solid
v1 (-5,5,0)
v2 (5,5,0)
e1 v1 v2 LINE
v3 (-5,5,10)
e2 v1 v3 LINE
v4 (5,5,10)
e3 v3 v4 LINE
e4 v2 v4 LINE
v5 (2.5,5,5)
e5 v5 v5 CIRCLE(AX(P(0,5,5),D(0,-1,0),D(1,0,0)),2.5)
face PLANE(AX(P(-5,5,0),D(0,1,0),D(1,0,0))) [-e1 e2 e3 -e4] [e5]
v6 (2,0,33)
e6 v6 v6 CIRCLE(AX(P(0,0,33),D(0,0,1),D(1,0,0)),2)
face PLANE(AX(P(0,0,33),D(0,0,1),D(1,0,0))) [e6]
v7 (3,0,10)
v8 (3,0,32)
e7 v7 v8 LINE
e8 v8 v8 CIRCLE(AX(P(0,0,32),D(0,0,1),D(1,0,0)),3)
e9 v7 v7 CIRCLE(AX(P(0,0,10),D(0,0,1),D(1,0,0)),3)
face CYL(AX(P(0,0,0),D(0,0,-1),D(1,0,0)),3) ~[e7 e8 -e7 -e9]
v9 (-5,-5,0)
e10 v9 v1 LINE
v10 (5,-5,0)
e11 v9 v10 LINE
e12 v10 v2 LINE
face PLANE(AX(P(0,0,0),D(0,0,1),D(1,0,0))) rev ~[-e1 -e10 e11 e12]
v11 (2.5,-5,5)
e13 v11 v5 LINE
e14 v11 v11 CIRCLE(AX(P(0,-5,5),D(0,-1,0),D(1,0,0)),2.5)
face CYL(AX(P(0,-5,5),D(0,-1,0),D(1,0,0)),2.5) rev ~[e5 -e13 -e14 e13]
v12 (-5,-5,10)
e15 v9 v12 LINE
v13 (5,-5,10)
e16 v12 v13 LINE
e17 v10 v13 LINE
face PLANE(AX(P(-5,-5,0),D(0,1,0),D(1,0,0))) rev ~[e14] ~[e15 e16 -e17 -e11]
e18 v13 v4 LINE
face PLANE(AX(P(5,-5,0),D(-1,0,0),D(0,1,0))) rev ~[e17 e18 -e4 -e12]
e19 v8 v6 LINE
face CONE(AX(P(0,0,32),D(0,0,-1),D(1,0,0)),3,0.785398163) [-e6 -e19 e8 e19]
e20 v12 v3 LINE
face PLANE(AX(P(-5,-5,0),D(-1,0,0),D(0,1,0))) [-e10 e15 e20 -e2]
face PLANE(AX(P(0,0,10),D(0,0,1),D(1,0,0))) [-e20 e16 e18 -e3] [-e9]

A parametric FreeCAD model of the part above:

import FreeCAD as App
import Part
import Sketcher
Q = App.Units.Quantity


def edges_at(feature, points):
    """Names of the edges that pass closest to the given points."""
    edges = feature.Shape.Edges
    near = lambda p: min(range(len(edges)), key=lambda i: edges[i].distToShape(Part.Vertex(*p))[0])
    return sorted({f"Edge{near(p) + 1}" for p in points})


def add_polygon(sketch, points):
    """Adds a closed chain of lines whose ends are joined by coincident constraints."""
    first, n = sketch.GeometryCount, len(points)
    for a, b in zip(points, points[1:] + points[:1]):
        sketch.addGeometry(Part.LineSegment(App.Vector(*a, 0), App.Vector(*b, 0)), False)
    for i in range(n):
        sketch.addConstraint(Sketcher.Constraint("Coincident", first + i, 2, first + (i + 1) % n, 1))

doc = App.newDocument("Part")
body = doc.addObject("PartDesign::Body", "Body")

# Sketch on XY plane
sketch1 = body.newObject("Sketcher::SketchObject", "Sketch")
sketch1.AttachmentSupport = (doc.getObject("XY_Plane"), [""])
sketch1.MapMode = "FlatFace"
add_polygon(sketch1, [(-5, 5), (-5, -5), (5, -5), (5, 5)])  # lines 0-3
sketch1.addGeometry(Part.Circle(App.Vector(0, 0, 0), App.Vector(0, 0, 1), 3), False)  # 4
sketch1.addConstraint([
    Sketcher.Constraint("Vertical", 0),
    Sketcher.Constraint("Horizontal", 1),
    Sketcher.Constraint("Vertical", 2),
    Sketcher.Constraint("Horizontal", 3),
    Sketcher.Constraint("Coincident", 4, 3, -1, 1),
    Sketcher.Constraint("Symmetric", 0, 2, 2, 2, -1, 1),
    Sketcher.Constraint("Equal", 3, 0),
    Sketcher.Constraint("Diameter", 4, Q("6 mm")),
    Sketcher.Constraint("DistanceX", 1, 1, 1, 2, Q("10 mm")),
])
pad1 = body.newObject("PartDesign::Pad", "Pad")
pad1.Profile = sketch1
pad1.Length = 10

# Sketch on XY plane
sketch2 = body.newObject("Sketcher::SketchObject", "Sketch001")
sketch2.AttachmentSupport = (doc.getObject("XY_Plane"), [""])
sketch2.MapMode = "FlatFace"
sketch2.addGeometry(Part.Circle(App.Vector(0, 0, 0), App.Vector(0, 0, 1), 3), False)
sketch2.addConstraint([
    Sketcher.Constraint("Coincident", 0, 3, -1, 1),
    Sketcher.Constraint("Diameter", 0, Q("6 mm")),
])
pad2 = body.newObject("PartDesign::Pad", "Pad001")
pad2.Profile = sketch2
pad2.Length = 33
doc.recompute()

chamfer = body.newObject("PartDesign::Chamfer", "Chamfer")
chamfer.Base = (pad2, edges_at(pad2, [(-3, 0, 33)]))
chamfer.Size = 1

# Sketch on XZ plane
sketch3 = body.newObject("Sketcher::SketchObject", "Sketch002")
sketch3.AttachmentSupport = (doc.getObject("XZ_Plane"), [""])
sketch3.MapMode = "FlatFace"
sketch3.AttachmentOffset = App.Placement(App.Vector(0, 0, 5), App.Rotation())
sketch3.addGeometry(Part.Circle(App.Vector(0, 5, 0), App.Vector(0, 0, 1), 2.5), False)
sketch3.addConstraint([
    Sketcher.Constraint("PointOnObject", 0, 3, -2),
    Sketcher.Constraint("Diameter", 0, Q("5 mm")),
    Sketcher.Constraint("DistanceY", -1, 1, 0, 3, Q("5 mm")),
])
pocket1 = body.newObject("PartDesign::Pocket", "Pocket")
pocket1.Profile = sketch3
pocket1.Length = 25

doc.recompute()
